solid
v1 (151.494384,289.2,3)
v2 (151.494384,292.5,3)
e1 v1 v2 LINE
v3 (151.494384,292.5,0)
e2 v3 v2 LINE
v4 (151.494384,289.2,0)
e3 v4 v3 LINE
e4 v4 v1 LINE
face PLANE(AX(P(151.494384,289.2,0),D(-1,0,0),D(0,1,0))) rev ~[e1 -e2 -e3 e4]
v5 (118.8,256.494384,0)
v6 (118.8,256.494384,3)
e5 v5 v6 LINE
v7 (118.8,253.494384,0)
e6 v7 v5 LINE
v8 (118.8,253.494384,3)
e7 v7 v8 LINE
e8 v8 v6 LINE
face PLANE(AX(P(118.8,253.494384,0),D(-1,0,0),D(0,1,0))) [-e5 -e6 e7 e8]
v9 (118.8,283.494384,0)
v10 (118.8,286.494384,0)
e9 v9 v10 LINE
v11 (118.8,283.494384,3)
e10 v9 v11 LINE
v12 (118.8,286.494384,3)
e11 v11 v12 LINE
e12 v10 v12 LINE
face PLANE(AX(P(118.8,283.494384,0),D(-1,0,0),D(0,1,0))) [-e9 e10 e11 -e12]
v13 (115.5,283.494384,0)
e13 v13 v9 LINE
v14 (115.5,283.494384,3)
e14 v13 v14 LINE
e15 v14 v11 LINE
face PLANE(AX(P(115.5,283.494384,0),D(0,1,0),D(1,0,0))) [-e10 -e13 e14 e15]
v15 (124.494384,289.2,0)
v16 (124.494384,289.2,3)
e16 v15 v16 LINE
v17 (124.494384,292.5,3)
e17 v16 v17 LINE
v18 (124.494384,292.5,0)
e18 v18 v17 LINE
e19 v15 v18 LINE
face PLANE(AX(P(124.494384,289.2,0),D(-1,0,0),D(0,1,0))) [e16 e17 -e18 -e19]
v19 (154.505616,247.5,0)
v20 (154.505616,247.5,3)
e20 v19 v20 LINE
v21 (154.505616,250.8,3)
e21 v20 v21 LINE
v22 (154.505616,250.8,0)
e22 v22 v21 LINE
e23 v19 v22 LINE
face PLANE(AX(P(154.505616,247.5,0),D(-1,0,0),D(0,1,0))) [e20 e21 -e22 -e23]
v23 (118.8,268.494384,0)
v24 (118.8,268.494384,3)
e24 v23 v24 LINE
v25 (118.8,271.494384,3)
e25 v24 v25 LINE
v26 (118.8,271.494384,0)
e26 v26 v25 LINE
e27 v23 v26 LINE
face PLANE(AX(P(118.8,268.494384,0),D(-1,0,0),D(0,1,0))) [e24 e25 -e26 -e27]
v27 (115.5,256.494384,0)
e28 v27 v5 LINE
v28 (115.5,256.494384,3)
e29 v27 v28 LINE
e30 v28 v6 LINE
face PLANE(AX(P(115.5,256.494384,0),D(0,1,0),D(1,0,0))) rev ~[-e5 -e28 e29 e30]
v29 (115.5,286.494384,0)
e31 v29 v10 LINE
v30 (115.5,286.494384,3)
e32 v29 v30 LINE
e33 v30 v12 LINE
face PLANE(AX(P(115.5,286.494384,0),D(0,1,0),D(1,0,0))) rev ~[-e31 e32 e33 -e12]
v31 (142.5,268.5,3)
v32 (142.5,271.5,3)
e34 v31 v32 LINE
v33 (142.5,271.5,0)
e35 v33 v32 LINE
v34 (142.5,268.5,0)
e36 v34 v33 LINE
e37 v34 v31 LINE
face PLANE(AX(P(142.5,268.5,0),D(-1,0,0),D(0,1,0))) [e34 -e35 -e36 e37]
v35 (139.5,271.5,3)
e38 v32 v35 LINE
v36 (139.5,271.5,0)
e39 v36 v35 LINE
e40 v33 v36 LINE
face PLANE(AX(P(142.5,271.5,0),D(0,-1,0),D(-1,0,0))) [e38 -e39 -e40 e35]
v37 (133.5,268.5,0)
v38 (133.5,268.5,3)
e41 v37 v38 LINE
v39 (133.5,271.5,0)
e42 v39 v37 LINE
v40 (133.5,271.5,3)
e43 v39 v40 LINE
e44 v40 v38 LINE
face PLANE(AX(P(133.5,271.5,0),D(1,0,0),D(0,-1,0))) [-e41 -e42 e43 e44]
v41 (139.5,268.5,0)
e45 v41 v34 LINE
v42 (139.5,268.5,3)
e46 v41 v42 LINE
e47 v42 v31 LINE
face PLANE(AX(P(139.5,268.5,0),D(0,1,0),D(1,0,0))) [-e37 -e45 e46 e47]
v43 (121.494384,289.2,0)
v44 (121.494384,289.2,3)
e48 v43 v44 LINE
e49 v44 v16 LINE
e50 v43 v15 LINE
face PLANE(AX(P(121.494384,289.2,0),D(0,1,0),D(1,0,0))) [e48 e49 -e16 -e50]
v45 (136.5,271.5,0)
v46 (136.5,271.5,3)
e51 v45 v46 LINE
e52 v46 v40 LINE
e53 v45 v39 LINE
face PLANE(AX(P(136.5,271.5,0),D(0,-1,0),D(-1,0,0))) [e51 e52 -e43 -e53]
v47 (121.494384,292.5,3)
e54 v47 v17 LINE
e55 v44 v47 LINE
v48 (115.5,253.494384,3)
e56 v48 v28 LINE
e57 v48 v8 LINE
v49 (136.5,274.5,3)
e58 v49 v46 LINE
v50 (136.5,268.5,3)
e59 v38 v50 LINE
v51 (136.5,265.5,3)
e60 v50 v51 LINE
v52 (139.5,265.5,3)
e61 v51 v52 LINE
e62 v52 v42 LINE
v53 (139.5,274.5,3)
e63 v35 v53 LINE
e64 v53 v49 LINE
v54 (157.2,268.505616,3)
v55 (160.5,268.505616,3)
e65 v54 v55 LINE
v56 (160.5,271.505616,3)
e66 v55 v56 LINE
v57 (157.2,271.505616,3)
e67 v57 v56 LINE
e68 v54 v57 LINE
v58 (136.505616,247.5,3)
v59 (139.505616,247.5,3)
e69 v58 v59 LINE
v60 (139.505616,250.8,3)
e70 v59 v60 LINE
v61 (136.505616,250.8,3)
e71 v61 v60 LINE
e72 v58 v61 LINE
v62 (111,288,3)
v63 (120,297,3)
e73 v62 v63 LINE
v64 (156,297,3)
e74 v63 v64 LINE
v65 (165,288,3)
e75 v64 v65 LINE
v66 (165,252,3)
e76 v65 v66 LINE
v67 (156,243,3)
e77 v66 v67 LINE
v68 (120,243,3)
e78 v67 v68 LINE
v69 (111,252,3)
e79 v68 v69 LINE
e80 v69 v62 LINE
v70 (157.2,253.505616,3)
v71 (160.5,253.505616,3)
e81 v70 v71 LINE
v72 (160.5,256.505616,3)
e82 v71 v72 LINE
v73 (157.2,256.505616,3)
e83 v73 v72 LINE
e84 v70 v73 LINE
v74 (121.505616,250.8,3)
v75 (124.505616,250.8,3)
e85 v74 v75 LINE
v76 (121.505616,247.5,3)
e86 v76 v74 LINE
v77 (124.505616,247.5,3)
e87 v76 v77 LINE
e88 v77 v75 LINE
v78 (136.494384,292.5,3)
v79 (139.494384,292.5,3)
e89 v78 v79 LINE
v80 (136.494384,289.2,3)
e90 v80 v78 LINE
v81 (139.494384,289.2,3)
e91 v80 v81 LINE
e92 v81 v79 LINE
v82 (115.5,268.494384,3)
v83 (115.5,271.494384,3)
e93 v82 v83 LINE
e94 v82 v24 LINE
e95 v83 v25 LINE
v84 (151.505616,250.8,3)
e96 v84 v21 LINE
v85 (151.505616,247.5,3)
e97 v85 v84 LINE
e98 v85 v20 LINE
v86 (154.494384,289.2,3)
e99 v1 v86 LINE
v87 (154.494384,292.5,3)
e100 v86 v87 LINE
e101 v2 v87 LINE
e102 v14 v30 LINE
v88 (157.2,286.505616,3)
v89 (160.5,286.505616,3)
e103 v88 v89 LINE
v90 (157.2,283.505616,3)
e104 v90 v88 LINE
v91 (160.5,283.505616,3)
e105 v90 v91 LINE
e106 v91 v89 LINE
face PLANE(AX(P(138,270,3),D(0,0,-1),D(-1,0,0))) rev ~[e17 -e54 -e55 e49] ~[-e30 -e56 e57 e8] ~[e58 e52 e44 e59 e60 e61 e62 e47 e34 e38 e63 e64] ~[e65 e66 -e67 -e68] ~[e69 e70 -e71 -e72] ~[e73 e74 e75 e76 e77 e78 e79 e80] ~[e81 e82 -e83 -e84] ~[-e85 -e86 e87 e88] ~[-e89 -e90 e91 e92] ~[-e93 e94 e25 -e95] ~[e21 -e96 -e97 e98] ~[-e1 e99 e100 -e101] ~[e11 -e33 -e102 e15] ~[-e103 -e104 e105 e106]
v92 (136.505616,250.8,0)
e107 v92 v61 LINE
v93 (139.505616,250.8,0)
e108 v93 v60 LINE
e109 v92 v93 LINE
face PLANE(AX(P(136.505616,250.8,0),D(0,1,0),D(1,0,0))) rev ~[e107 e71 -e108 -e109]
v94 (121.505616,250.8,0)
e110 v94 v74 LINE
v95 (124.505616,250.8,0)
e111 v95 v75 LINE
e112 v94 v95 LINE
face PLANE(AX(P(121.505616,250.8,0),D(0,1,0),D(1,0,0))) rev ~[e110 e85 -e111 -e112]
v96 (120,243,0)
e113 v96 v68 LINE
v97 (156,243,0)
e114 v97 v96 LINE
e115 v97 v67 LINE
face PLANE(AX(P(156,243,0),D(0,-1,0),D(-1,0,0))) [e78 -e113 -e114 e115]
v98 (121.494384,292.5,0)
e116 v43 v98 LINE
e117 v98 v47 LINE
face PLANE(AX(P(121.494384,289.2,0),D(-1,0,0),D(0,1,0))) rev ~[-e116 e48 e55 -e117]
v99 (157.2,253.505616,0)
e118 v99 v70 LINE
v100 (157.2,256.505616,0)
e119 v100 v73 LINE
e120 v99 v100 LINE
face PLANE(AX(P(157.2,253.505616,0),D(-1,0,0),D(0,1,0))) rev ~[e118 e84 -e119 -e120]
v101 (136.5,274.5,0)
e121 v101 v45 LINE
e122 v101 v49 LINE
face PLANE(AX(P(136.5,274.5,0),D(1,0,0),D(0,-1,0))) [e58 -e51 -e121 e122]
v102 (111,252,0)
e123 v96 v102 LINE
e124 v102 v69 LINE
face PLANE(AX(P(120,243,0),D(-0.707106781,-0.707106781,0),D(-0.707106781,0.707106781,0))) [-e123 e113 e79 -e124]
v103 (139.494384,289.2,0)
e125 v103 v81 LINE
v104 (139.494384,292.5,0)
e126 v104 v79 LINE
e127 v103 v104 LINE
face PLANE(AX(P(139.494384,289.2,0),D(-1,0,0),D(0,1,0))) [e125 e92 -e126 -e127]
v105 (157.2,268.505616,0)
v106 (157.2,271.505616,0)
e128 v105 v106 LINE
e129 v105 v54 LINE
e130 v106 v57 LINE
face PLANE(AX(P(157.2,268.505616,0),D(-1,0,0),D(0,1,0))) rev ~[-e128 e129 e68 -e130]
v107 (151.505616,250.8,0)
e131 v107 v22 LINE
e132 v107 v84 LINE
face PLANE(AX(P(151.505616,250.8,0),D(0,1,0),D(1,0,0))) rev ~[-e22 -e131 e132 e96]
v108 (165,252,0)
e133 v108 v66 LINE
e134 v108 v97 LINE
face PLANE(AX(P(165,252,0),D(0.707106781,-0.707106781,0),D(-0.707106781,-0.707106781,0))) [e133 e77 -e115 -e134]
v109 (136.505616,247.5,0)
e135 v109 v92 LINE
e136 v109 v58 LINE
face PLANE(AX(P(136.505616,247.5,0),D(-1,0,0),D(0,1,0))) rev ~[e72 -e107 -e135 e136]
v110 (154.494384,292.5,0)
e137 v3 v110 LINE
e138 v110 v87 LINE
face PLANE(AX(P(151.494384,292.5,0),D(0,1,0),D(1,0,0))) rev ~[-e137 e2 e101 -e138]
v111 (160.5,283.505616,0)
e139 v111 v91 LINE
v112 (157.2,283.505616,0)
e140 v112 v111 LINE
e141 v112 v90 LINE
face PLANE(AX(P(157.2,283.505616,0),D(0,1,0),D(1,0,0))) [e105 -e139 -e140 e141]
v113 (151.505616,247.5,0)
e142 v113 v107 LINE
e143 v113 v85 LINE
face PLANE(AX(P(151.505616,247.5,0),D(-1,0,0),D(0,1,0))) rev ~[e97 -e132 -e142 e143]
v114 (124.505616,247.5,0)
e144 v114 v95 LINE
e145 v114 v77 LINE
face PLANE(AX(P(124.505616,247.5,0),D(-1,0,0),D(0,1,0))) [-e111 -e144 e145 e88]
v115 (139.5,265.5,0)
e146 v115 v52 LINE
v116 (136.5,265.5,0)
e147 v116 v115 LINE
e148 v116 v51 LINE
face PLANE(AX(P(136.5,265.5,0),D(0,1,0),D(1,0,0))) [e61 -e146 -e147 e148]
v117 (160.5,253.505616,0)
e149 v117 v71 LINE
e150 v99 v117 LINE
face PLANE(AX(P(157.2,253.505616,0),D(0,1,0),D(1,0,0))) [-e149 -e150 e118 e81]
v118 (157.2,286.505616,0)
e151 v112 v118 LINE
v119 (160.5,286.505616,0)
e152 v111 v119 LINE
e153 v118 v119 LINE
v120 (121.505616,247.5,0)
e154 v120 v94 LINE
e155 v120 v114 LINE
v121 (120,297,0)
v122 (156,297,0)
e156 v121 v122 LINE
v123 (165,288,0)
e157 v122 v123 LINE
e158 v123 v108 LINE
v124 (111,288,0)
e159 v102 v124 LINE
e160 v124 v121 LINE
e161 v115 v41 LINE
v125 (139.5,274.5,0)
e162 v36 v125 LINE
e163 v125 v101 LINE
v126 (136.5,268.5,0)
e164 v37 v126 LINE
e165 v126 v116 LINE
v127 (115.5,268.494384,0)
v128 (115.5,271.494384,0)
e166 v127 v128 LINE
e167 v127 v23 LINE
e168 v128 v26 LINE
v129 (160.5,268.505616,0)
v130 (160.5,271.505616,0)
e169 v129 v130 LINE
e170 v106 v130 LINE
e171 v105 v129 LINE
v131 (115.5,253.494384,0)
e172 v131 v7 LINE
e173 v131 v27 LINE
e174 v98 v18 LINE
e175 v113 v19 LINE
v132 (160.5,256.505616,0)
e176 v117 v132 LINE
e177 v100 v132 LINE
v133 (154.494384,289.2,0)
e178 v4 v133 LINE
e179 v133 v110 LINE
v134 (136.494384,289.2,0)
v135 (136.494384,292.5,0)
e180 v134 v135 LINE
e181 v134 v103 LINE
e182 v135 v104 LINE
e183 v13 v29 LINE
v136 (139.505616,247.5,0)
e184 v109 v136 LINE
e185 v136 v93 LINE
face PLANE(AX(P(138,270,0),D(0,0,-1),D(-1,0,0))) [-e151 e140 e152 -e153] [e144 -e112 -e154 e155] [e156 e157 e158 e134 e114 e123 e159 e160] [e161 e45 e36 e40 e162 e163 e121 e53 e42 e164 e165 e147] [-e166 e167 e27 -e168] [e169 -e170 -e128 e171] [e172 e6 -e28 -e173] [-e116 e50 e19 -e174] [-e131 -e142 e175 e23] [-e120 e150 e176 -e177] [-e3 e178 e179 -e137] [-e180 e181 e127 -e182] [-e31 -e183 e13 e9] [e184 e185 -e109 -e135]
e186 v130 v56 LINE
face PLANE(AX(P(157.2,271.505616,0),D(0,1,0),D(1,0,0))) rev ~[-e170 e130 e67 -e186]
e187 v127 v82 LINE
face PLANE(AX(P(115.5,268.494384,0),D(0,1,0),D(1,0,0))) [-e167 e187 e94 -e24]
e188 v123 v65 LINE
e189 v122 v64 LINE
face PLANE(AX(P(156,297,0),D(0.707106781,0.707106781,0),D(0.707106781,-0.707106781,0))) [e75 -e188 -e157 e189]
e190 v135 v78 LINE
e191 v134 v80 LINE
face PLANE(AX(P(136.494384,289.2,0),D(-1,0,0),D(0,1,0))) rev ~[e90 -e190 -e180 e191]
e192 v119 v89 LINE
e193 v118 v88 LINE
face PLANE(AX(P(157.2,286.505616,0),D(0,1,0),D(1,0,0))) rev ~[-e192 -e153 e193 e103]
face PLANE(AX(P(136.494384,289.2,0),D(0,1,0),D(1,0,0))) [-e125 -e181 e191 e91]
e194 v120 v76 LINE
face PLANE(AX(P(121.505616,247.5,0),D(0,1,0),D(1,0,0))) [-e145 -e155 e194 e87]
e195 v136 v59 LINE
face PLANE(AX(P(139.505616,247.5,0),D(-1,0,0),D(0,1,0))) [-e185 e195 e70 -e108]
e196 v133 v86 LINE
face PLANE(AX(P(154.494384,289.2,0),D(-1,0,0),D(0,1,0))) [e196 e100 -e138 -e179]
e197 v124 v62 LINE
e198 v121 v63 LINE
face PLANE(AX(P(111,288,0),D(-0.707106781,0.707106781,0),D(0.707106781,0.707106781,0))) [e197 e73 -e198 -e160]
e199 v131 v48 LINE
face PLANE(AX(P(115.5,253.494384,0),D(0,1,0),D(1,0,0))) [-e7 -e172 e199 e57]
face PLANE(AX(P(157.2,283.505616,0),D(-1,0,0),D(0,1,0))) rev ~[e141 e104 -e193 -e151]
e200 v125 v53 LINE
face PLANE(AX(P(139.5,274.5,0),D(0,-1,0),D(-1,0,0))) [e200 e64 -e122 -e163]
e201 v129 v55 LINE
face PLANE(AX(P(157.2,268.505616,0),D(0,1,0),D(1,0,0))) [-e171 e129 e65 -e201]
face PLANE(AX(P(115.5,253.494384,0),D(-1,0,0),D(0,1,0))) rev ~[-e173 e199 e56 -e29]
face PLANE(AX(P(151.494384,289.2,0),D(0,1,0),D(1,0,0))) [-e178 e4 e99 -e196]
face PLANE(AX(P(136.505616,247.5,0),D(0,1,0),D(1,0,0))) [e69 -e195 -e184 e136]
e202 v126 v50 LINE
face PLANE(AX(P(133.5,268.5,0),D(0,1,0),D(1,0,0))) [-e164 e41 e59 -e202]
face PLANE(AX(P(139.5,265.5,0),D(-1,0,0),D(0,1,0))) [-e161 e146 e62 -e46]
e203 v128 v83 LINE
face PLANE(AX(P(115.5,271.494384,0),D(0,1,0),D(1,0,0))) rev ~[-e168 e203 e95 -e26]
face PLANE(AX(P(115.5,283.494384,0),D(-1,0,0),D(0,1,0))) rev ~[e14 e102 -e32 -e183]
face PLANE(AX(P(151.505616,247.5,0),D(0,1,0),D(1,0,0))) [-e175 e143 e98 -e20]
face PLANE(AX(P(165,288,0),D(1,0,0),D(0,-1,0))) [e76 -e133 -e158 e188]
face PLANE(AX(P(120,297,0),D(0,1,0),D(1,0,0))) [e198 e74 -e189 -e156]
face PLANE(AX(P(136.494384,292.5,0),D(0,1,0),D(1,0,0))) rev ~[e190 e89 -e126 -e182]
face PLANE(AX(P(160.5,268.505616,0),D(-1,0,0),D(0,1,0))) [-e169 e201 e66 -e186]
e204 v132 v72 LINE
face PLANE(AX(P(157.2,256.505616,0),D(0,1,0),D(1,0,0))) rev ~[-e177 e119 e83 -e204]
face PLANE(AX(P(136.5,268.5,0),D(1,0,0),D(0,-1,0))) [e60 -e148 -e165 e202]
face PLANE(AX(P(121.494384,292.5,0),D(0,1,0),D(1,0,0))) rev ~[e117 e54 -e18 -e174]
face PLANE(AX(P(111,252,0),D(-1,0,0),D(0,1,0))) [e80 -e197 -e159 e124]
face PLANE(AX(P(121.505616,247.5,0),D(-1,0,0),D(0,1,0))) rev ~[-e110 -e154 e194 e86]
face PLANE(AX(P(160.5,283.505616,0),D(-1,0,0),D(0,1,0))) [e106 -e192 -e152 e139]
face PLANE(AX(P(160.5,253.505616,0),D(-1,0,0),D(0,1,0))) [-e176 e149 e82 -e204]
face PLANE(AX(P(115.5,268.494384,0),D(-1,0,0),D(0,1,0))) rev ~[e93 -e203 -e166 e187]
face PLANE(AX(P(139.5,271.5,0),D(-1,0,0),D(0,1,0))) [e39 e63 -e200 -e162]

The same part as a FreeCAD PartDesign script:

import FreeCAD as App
import Part
import Sketcher
Q = App.Units.Quantity


def add_polygon(sketch, points):
    """Adds a closed chain of lines whose ends are joined by coincident constraints."""
    first, n = sketch.GeometryCount, len(points)
    for a, b in zip(points, points[1:] + points[:1]):
        sketch.addGeometry(Part.LineSegment(App.Vector(*a, 0), App.Vector(*b, 0)), False)
    for i in range(n):
        sketch.addConstraint(Sketcher.Constraint("Coincident", first + i, 2, first + (i + 1) % n, 1))

doc = App.newDocument("Part")
body = doc.addObject("PartDesign::Body", "Body")

sketch1 = doc.addObject("Sketcher::SketchObject", "Sketch")
body.addObject(sketch1)
sketch1.AttachmentSupport = (doc.XY_Plane, [""])
sketch1.MapMode = "FlatFace"
add_polygon(sketch1, [(156, 243), (165, 252), (165, 288), (156, 297), (120, 297), (111, 288), (111, 252), (120, 243)])
add_polygon(sketch1, [(151.505616, 247.5), (151.505616, 250.8), (154.505616, 250.8), (154.505616, 247.5)])
add_polygon(sketch1, [(157.2, 253.505616), (157.2, 256.505616), (160.5, 256.505616), (160.5, 253.505616)])
add_polygon(sketch1, [(136.505616, 247.5), (136.505616, 250.8), (139.505616, 250.8), (139.505616, 247.5)])
add_polygon(sketch1, [(121.505616, 247.5), (121.505616, 250.8), (124.505616, 250.8), (124.505616, 247.5)])
add_polygon(sketch1, [(115.5, 253.494384), (115.5, 256.494384), (118.8, 256.494384), (118.8, 253.494384)])
add_polygon(sketch1, [(136.5, 274.5), (139.5, 274.5), (139.5, 271.5), (142.5, 271.5), (142.5, 268.5), (139.5, 268.5), (139.5, 265.5), (136.5, 265.5), (136.5, 268.5), (133.5, 268.5), (133.5, 271.5), (136.5, 271.5)])
add_polygon(sketch1, [(115.5, 268.494384), (115.5, 271.494384), (118.8, 271.494384), (118.8, 268.494384)])
add_polygon(sketch1, [(157.2, 268.505616), (157.2, 271.505616), (160.5, 271.505616), (160.5, 268.505616)])
add_polygon(sketch1, [(157.2, 283.505616), (157.2, 286.505616), (160.5, 286.505616), (160.5, 283.505616)])
add_polygon(sketch1, [(151.494384, 289.2), (151.494384, 292.5), (154.494384, 292.5), (154.494384, 289.2)])
add_polygon(sketch1, [(136.494384, 289.2), (136.494384, 292.5), (139.494384, 292.5), (139.494384, 289.2)])
add_polygon(sketch1, [(115.5, 283.494384), (115.5, 286.494384), (118.8, 286.494384), (118.8, 283.494384)])
add_polygon(sketch1, [(121.494384, 289.2), (121.494384, 292.5), (124.494384, 292.5), (124.494384, 289.2)])
sketch1.addConstraint([
    Sketcher.Constraint("Vertical", 1),
    Sketcher.Constraint("Horizontal", 3),
    Sketcher.Constraint("Vertical", 5),
    Sketcher.Constraint("Horizontal", 7),
    Sketcher.Constraint("Vertical", 8),
    Sketcher.Constraint("Horizontal", 9),
    Sketcher.Constraint("Vertical", 10),
    Sketcher.Constraint("Horizontal", 11),
    Sketcher.Constraint("Vertical", 12),
    Sketcher.Constraint("Horizontal", 13),
    Sketcher.Constraint("Vertical", 14),
    Sketcher.Constraint("Horizontal", 15),
    Sketcher.Constraint("Vertical", 16),
    Sketcher.Constraint("Horizontal", 17),
    Sketcher.Constraint("Vertical", 18),
    Sketcher.Constraint("Horizontal", 19),
    Sketcher.Constraint("Vertical", 20),
    Sketcher.Constraint("Horizontal", 21),
    Sketcher.Constraint("Vertical", 22),
    Sketcher.Constraint("Horizontal", 23),
    Sketcher.Constraint("Vertical", 24),
    Sketcher.Constraint("Horizontal", 25),
    Sketcher.Constraint("Vertical", 26),
    Sketcher.Constraint("Horizontal", 27),
    Sketcher.Constraint("Horizontal", 28),
    Sketcher.Constraint("Vertical", 29),
    Sketcher.Constraint("Horizontal", 30),
    Sketcher.Constraint("Vertical", 31),
    Sketcher.Constraint("Horizontal", 32),
    Sketcher.Constraint("Vertical", 33),
    Sketcher.Constraint("Horizontal", 34),
    Sketcher.Constraint("Vertical", 35),
    Sketcher.Constraint("Horizontal", 36),
    Sketcher.Constraint("Vertical", 37),
    Sketcher.Constraint("Horizontal", 38),
    Sketcher.Constraint("Vertical", 39),
    Sketcher.Constraint("Vertical", 40),
    Sketcher.Constraint("Horizontal", 41),
    Sketcher.Constraint("Vertical", 42),
    Sketcher.Constraint("Horizontal", 43),
    Sketcher.Constraint("Vertical", 44),
    Sketcher.Constraint("Horizontal", 45),
    Sketcher.Constraint("Vertical", 46),
    Sketcher.Constraint("Horizontal", 47),
    Sketcher.Constraint("Vertical", 48),
    Sketcher.Constraint("Horizontal", 49),
    Sketcher.Constraint("Vertical", 50),
    Sketcher.Constraint("Horizontal", 51),
    Sketcher.Constraint("Vertical", 52),
    Sketcher.Constraint("Horizontal", 53),
    Sketcher.Constraint("Vertical", 54),
    Sketcher.Constraint("Horizontal", 55),
    Sketcher.Constraint("Vertical", 56),
    Sketcher.Constraint("Horizontal", 57),
    Sketcher.Constraint("Vertical", 58),
    Sketcher.Constraint("Horizontal", 59),
    Sketcher.Constraint("Vertical", 60),
    Sketcher.Constraint("Horizontal", 61),
    Sketcher.Constraint("Vertical", 62),
    Sketcher.Constraint("Horizontal", 63),
    Sketcher.Constraint("Vertical", 64),
    Sketcher.Constraint("Horizontal", 65),
    Sketcher.Constraint("Vertical", 66),
    Sketcher.Constraint("Horizontal", 67),
    Sketcher.Constraint("Perpendicular", 0, 2),
    Sketcher.Constraint("Perpendicular", 2, 4),
    Sketcher.Constraint("Perpendicular", 4, 6),
    Sketcher.Constraint("Horizontal", 1, 2, 4, 2),
    Sketcher.Constraint("Horizontal", 0, 2, 5, 2),
    Sketcher.Constraint("Horizontal", 9, 2, 16, 2),
    Sketcher.Constraint("Horizontal", 11, 2, 18, 2),
    Sketcher.Constraint("Horizontal", 17, 2, 20, 2),
    Sketcher.Constraint("Horizontal", 19, 2, 22, 2),
    Sketcher.Constraint("Horizontal", 32, 2, 35, 2),
    Sketcher.Constraint("Horizontal", 30, 2, 37, 2),
    Sketcher.Constraint("Horizontal", 53, 2, 56, 2),
    Sketcher.Constraint("Horizontal", 55, 2, 58, 2),
    Sketcher.Constraint("Horizontal", 57, 2, 64, 2),
    Sketcher.Constraint("Horizontal", 59, 2, 66, 2),
    Sketcher.Constraint("Vertical", 3, 2, 6, 2),
    Sketcher.Constraint("Vertical", 2, 2, 7, 2),
    Sketcher.Constraint("Vertical", 29, 2, 32, 2),
    Sketcher.Constraint("Vertical", 35, 2, 38, 2),
    Sketcher.Constraint("Vertical", 27, 2, 40, 2),
    Sketcher.Constraint("Vertical", 26, 2, 41, 2),
    Sketcher.Constraint("Vertical", 15, 2, 44, 2),
    Sketcher.Constraint("Vertical", 14, 2, 45, 2),
    Sketcher.Constraint("Vertical", 47, 2, 48, 2),
    Sketcher.Constraint("Vertical", 46, 2, 49, 2),
    Sketcher.Constraint("Vertical", 43, 2, 60, 2),
    Sketcher.Constraint("Vertical", 42, 2, 61, 2),
    Sketcher.Constraint("Equal", 11, 17),
    Sketcher.Constraint("Equal", 19, 21),
    Sketcher.Constraint("Equal", 15, 25),
    Sketcher.Constraint("Equal", 23, 28),
    Sketcher.Constraint("Equal", 28, 30),
    Sketcher.Constraint("Equal", 34, 36),
    Sketcher.Constraint("Equal", 38, 53),
    Sketcher.Constraint("Equal", 55, 57),
    Sketcher.Constraint("Equal", 59, 65),
    Sketcher.Constraint("Equal", 7, 1),
    Sketcher.Constraint("Equal", 63, 8),
    Sketcher.Constraint("Equal", 67, 12),
    Sketcher.Constraint("Equal", 14, 24),
    Sketcher.Constraint("Equal", 26, 29),
    Sketcher.Constraint("Equal", 29, 31),
    Sketcher.Constraint("Equal", 31, 33),
    Sketcher.Constraint("Equal", 39, 40),
    Sketcher.Constraint("Equal", 42, 44),
    Sketcher.Constraint("Equal", 46, 48),
    Sketcher.Constraint("Equal", 22, 52),
    Sketcher.Constraint("Equal", 50, 60),
    Sketcher.Constraint("DistanceX", 3, 2, 3, 1, Q("36 mm")),
    Sketcher.Constraint("DistanceX", 9, 1, 9, 2, Q("3 mm")),
    Sketcher.Constraint("DistanceX", 13, 1, 13, 2, Q("3.3 mm")),
    Sketcher.Constraint("DistanceX", -1, 1, 0, 2, Q("165 mm")),
    Sketcher.Constraint("DistanceY", -1, 1, 0, 2, Q("252 mm")),
    Sketcher.Constraint("DistanceX", -1, 1, 2, 2, Q("156 mm")),
    Sketcher.Constraint("DistanceY", -1, 1, 8, 2, Q("250.8 mm")),
    Sketcher.Constraint("DistanceX", -1, 1, 12, 2, Q("157.2 mm")),
    Sketcher.Constraint("DistanceX", -1, 1, 24, 2, Q("115.5 mm")),
    Sketcher.Constraint("DistanceX", -1, 1, 28, 2, Q("139.5 mm")),
    Sketcher.Constraint("DistanceY", -1, 1, 28, 2, Q("274.5 mm")),
    Sketcher.Constraint("DistanceY", -1, 1, 52, 2, Q("292.5 mm")),
    Sketcher.Constraint("DistanceX", -1, 1, 8, 2, Q("151.505616 mm")),
    Sketcher.Constraint("DistanceY", -1, 1, 12, 2, Q("256.505616 mm")),
    Sketcher.Constraint("DistanceX", -1, 1, 16, 2, Q("136.505616 mm")),
    Sketcher.Constraint("DistanceX", -1, 1, 20, 2, Q("121.505616 mm")),
    Sketcher.Constraint("DistanceY", -1, 1, 24, 2, Q("256.494384 mm")),
    Sketcher.Constraint("DistanceY", -1, 1, 40, 2, Q("271.494384 mm")),
    Sketcher.Constraint("DistanceY", -1, 1, 44, 2, Q("271.505616 mm")),
    Sketcher.Constraint("DistanceY", -1, 1, 48, 2, Q("286.505616 mm")),
    Sketcher.Constraint("DistanceX", -1, 1, 52, 2, Q("151.494384 mm")),
    Sketcher.Constraint("DistanceX", -1, 1, 56, 2, Q("136.494384 mm")),
    Sketcher.Constraint("DistanceY", -1, 1, 60, 2, Q("286.494384 mm")),
    Sketcher.Constraint("DistanceX", -1, 1, 64, 2, Q("121.494384 mm")),
])
pad1 = doc.addObject("PartDesign::Pad", "Pad")
body.addObject(pad1)
pad1.Profile = sketch1
pad1.Length = 3

doc.recompute()
